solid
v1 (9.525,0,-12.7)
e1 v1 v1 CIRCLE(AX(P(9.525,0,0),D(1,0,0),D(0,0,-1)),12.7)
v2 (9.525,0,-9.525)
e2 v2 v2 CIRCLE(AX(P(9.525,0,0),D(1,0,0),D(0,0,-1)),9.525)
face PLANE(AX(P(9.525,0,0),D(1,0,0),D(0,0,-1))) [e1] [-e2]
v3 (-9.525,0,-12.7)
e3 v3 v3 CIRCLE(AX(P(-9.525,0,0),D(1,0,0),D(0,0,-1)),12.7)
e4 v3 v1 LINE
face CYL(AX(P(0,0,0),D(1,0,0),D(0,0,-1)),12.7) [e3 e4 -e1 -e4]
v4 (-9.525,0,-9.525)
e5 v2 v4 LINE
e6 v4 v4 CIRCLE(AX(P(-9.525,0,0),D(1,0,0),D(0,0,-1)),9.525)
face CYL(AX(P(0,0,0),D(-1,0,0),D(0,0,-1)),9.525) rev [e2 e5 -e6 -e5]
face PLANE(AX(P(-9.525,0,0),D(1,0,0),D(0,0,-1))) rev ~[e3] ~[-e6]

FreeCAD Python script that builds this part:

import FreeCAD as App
import Part
import Sketcher

V = App.Vector
Q = App.Units.Quantity

doc = App.newDocument("Part")
body = doc.addObject("PartDesign::Body", "Body")

# Sketch on YZ plane
sketch1 = body.newObject("Sketcher::SketchObject", "Sketch")
sketch1.AttachmentSupport = (doc.getObject("YZ_Plane"), [""])
sketch1.MapMode = "FlatFace"
sketch1.addGeometry([
    Part.Circle(V(0, 0, 0), V(0, 0, 1), 12.7),
    Part.Circle(V(0, 0, 0), V(0, 0, 1), 9.525),
], False)
sketch1.addConstraint([
    Sketcher.Constraint("Coincident", 0, 3, -1, 1),
    Sketcher.Constraint("Coincident", 1, 3, -1, 1),
    Sketcher.Constraint("Diameter", 0, Q("1 in")),
    Sketcher.Constraint("Diameter", 1, Q("0.75 in")),
])
pad1 = body.newObject("PartDesign::Pad", "Pad")
pad1.Profile = sketch1
pad1.Length = Q("0.75 in")
pad1.Midplane = True

doc.recompute()
